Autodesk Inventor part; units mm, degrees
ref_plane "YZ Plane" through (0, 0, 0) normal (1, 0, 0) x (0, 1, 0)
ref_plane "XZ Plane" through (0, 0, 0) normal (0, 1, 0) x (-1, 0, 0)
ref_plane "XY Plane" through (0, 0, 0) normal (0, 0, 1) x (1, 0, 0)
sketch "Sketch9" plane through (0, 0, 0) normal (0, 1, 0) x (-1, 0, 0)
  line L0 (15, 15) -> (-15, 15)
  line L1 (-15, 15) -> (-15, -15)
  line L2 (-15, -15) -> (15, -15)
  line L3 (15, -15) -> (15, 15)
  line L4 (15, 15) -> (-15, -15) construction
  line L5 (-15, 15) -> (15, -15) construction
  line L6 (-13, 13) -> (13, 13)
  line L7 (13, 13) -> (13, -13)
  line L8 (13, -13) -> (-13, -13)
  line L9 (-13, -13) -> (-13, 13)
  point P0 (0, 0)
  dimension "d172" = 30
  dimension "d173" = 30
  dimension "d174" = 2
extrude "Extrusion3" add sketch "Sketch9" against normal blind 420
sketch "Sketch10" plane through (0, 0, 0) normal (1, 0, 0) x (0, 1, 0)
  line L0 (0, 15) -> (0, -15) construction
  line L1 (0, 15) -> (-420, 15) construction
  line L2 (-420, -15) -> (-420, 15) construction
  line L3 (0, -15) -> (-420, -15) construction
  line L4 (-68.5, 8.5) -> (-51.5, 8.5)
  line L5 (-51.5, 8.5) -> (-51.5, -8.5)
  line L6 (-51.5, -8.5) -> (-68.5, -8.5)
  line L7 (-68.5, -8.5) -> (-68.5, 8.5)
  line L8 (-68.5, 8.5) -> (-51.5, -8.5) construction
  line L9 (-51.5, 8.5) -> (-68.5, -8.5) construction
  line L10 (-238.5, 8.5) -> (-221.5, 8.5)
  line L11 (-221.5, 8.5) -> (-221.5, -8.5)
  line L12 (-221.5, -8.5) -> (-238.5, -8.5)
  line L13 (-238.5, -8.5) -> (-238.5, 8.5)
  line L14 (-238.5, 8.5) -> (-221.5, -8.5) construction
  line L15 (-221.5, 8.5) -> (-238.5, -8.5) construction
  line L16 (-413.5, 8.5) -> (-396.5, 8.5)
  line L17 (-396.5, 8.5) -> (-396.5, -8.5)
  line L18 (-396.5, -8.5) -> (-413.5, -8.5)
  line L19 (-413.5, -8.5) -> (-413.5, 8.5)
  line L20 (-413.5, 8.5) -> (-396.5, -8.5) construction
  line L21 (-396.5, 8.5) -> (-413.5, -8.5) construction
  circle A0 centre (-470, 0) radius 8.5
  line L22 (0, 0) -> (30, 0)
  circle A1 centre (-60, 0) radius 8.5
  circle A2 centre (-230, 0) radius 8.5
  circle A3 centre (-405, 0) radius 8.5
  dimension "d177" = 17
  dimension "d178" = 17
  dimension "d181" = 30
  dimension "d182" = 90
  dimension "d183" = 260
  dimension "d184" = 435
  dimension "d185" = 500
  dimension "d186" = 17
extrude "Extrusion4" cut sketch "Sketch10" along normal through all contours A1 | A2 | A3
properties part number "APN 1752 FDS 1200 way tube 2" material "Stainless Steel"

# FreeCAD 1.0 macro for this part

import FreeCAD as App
import Part
import Sketcher

doc = App.newDocument("Part")
body = doc.addObject("PartDesign::Body", "Body")

# Sketch on XZ plane
sketch1 = body.newObject("Sketcher::SketchObject", "Sketch")
sketch1.AttachmentSupport = (doc.getObject("XZ_Plane"), [""])
sketch1.MapMode = "FlatFace"
sketch1.addGeometry(Part.LineSegment(App.Vector(-15, -15, 0), App.Vector(-15, 15, 0)), False)
sketch1.addGeometry(Part.LineSegment(App.Vector(-15, 15, 0), App.Vector(15, 15, 0)), False)
sketch1.addGeometry(Part.LineSegment(App.Vector(15, 15, 0), App.Vector(15, -15, 0)), False)
sketch1.addGeometry(Part.LineSegment(App.Vector(15, -15, 0), App.Vector(-15, -15, 0)), False)
sketch1.addGeometry(Part.LineSegment(App.Vector(13, -13, 0), App.Vector(13, 13, 0)), False)
sketch1.addGeometry(Part.LineSegment(App.Vector(13, 13, 0), App.Vector(-13, 13, 0)), False)
sketch1.addGeometry(Part.LineSegment(App.Vector(-13, 13, 0), App.Vector(-13, -13, 0)), False)
sketch1.addGeometry(Part.LineSegment(App.Vector(-13, -13, 0), App.Vector(13, -13, 0)), False)
sketch1.addConstraint(Sketcher.Constraint("Coincident", 0, 2, 1, 1))
sketch1.addConstraint(Sketcher.Constraint("Coincident", 1, 2, 2, 1))
sketch1.addConstraint(Sketcher.Constraint("Coincident", 2, 2, 3, 1))
sketch1.addConstraint(Sketcher.Constraint("Coincident", 3, 2, 0, 1))
sketch1.addConstraint(Sketcher.Constraint("Coincident", 4, 2, 5, 1))
sketch1.addConstraint(Sketcher.Constraint("Coincident", 5, 2, 6, 1))
sketch1.addConstraint(Sketcher.Constraint("Coincident", 6, 2, 7, 1))
sketch1.addConstraint(Sketcher.Constraint("Coincident", 7, 2, 4, 1))
sketch1.addConstraint(Sketcher.Constraint("Vertical", 0))
sketch1.addConstraint(Sketcher.Constraint("Horizontal", 1))
sketch1.addConstraint(Sketcher.Constraint("Vertical", 2))
sketch1.addConstraint(Sketcher.Constraint("Horizontal", 3))
sketch1.addConstraint(Sketcher.Constraint("Vertical", 4))
sketch1.addConstraint(Sketcher.Constraint("Horizontal", 5))
sketch1.addConstraint(Sketcher.Constraint("Vertical", 6))
sketch1.addConstraint(Sketcher.Constraint("Horizontal", 7))
sketch1.addConstraint(Sketcher.Constraint("Symmetric", 0, 2, 2, 2, -1, 1))
sketch1.addConstraint(Sketcher.Constraint("Symmetric", 4, 2, 6, 2, -1, 1))
sketch1.addConstraint(Sketcher.Constraint("Equal", 3, 0))
sketch1.addConstraint(Sketcher.Constraint("Equal", 7, 4))
sketch1.addConstraint(Sketcher.Constraint("DistanceX", 1, 1, 1, 2, 30.0))
sketch1.addConstraint(Sketcher.Constraint("DistanceX", 4, 2, 1, 2, 2.0))
pad1 = body.newObject("PartDesign::Pad", "Pad")
pad1.Profile = sketch1
pad1.Length = 420

# Sketch on YZ plane
sketch2 = body.newObject("Sketcher::SketchObject", "Sketch001")
sketch2.AttachmentSupport = (doc.getObject("YZ_Plane"), [""])
sketch2.MapMode = "FlatFace"
sketch2.addGeometry(Part.Circle(App.Vector(-60, 0, 0), App.Vector(0, 0, 1), 8), False)
sketch2.addGeometry(Part.Circle(App.Vector(-230, 0, 0), App.Vector(0, 0, 1), 8), False)
sketch2.addGeometry(Part.Circle(App.Vector(-405, 0, 0), App.Vector(0, 0, 1), 8), False)
sketch2.addConstraint(Sketcher.Constraint("Equal", 0, 1))
sketch2.addConstraint(Sketcher.Constraint("Equal", 1, 2))
sketch2.addConstraint(Sketcher.Constraint("PointOnObject", 0, 3, -1))
sketch2.addConstraint(Sketcher.Constraint("PointOnObject", 1, 3, -1))
sketch2.addConstraint(Sketcher.Constraint("PointOnObject", 2, 3, -1))
sketch2.addConstraint(Sketcher.Constraint("Diameter", 0, 17.0))
sketch2.addConstraint(Sketcher.Constraint("DistanceX", 0, 3, -1, 1, 60.0))
sketch2.addConstraint(Sketcher.Constraint("DistanceX", 1, 3, -1, 1, 230.0))
sketch2.addConstraint(Sketcher.Constraint("DistanceX", 2, 3, -1, 1, 405.0))
pocket1 = body.newObject("PartDesign::Pocket", "Pocket")
pocket1.Profile = sketch2
pocket1.Type = "ThroughAll"
pocket1.Reversed = True

doc.recompute()
